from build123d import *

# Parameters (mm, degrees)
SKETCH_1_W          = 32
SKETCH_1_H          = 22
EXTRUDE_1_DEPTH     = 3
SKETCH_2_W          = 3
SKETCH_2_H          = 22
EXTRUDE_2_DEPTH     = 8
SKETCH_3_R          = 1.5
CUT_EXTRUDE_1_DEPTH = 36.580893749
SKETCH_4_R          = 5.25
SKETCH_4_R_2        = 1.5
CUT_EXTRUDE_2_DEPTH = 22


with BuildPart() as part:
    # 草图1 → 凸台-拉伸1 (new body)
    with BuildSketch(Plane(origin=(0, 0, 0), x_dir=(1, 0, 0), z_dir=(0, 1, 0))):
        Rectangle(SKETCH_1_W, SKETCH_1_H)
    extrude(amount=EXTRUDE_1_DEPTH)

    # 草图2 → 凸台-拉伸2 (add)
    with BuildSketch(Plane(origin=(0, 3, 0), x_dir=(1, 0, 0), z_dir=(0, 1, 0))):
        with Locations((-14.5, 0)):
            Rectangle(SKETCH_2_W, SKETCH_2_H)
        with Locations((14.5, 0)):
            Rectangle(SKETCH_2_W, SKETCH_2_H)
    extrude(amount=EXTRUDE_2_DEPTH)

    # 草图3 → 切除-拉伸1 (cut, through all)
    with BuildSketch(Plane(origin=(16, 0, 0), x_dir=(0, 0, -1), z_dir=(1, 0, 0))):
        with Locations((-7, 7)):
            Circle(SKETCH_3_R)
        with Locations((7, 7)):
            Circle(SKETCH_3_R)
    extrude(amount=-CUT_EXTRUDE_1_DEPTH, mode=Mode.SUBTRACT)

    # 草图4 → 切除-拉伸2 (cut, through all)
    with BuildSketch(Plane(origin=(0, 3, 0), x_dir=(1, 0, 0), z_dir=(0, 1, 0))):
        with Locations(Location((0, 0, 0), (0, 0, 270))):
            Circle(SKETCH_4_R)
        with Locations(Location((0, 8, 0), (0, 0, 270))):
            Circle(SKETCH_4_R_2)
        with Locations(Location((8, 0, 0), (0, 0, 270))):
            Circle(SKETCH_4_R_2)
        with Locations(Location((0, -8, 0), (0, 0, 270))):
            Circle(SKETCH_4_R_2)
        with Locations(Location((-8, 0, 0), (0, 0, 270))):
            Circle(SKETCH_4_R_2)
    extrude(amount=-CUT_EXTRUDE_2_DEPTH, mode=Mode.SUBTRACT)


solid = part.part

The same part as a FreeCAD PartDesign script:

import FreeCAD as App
import Part
import Sketcher

V = App.Vector
Q = App.Units.Quantity


def add_polygon(sketch, points):
    """Adds a closed chain of lines whose ends are joined by coincident constraints."""
    first, n = sketch.GeometryCount, len(points)
    for a, b in zip(points, points[1:] + points[:1]):
        sketch.addGeometry(Part.LineSegment(App.Vector(*a, 0), App.Vector(*b, 0)), False)
    for i in range(n):
        sketch.addConstraint(Sketcher.Constraint("Coincident", first + i, 2, first + (i + 1) % n, 1))

doc = App.newDocument("Part")
body = doc.addObject("PartDesign::Body", "Body")

# Sketch on XZ plane
sketch1 = body.newObject("Sketcher::SketchObject", "Sketch")
sketch1.AttachmentSupport = (doc.getObject("XZ_Plane"), [""])
sketch1.MapMode = "FlatFace"
add_polygon(sketch1, [(-16, -11), (-16, 11), (16, 11), (16, -11)])  # lines 0-3
sketch1.addConstraint(Sketcher.Constraint("Vertical", 0))
sketch1.addConstraint(Sketcher.Constraint("Horizontal", 1))
sketch1.addConstraint(Sketcher.Constraint("Vertical", 2))
sketch1.addConstraint(Sketcher.Constraint("Horizontal", 3))
sketch1.addConstraint(Sketcher.Constraint("Symmetric", 0, 2, 2, 2, -1, 1))
sketch1.addConstraint(Sketcher.Constraint("DistanceX", 1, 1, 1, 2, Q("32 mm")))
sketch1.addConstraint(Sketcher.Constraint("DistanceY", 0, 1, 0, 2, Q("22 mm")))
pad1 = body.newObject("PartDesign::Pad", "Pad")
pad1.Profile = sketch1
pad1.Length = 3
pad1.Reversed = True

# Sketch on XZ plane
sketch2 = body.newObject("Sketcher::SketchObject", "Sketch001")
sketch2.AttachmentSupport = (doc.getObject("XZ_Plane"), [""])
sketch2.MapMode = "FlatFace"
sketch2.AttachmentOffset = App.Placement(V(0, 0, -3), App.Rotation())
add_polygon(sketch2, [(-16, -11), (-16, 11), (-13, 11), (-13, -11)])  # lines 0-3
add_polygon(sketch2, [(13, -11), (13, 11), (16, 11), (16, -11)])  # lines 4-7
sketch2.addConstraint(Sketcher.Constraint("Vertical", 0))
sketch2.addConstraint(Sketcher.Constraint("Horizontal", 1))
sketch2.addConstraint(Sketcher.Constraint("Vertical", 2))
sketch2.addConstraint(Sketcher.Constraint("Horizontal", 3))
sketch2.addConstraint(Sketcher.Constraint("Vertical", 4))
sketch2.addConstraint(Sketcher.Constraint("Horizontal", 5))
sketch2.addConstraint(Sketcher.Constraint("Vertical", 6))
sketch2.addConstraint(Sketcher.Constraint("Horizontal", 7))
sketch2.addConstraint(Sketcher.Constraint("Symmetric", 2, 2, 4, 2, -1, 1))
sketch2.addConstraint(Sketcher.Constraint("Symmetric", 0, 2, 6, 2, -1, 1))
sketch2.addConstraint(Sketcher.Constraint("Horizontal", 1, 2, 4, 2))
sketch2.addConstraint(Sketcher.Constraint("DistanceX", 1, 1, 1, 2, Q("3 mm")))
sketch2.addConstraint(Sketcher.Constraint("DistanceY", 0, 1, 0, 2, Q("22 mm")))
sketch2.addConstraint(Sketcher.Constraint("DistanceX", 0, 2, -1, 1, Q("16 mm")))
pad2 = body.newObject("PartDesign::Pad", "Pad001")
pad2.Profile = sketch2
pad2.Length = 8
pad2.Reversed = True

# Sketch on YZ plane
sketch3 = body.newObject("Sketcher::SketchObject", "Sketch002")
sketch3.AttachmentSupport = (doc.getObject("YZ_Plane"), [""])
sketch3.MapMode = "FlatFace"
sketch3.AttachmentOffset = App.Placement(V(0, 0, 16), App.Rotation())
sketch3.addGeometry(Part.Circle(V(7, 7, 0), V(0, 0, 1), 1.5), False)
sketch3.addGeometry(Part.Circle(V(7, -7, 0), V(0, 0, 1), 1.5), False)
sketch3.addConstraint(Sketcher.Constraint("Equal", 0, 1))
sketch3.addConstraint(Sketcher.Constraint("Symmetric", 0, 3, 1, 3, -1))
sketch3.addConstraint(Sketcher.Constraint("Diameter", 0, Q("3 mm")))
sketch3.addConstraint(Sketcher.Constraint("DistanceX", -1, 1, 0, 3, Q("7 mm")))
sketch3.addConstraint(Sketcher.Constraint("DistanceY", -1, 1, 0, 3, Q("7 mm")))
pocket1 = body.newObject("PartDesign::Pocket", "Pocket")
pocket1.Profile = sketch3
pocket1.Type = "ThroughAll"

# Sketch on XZ plane
sketch4 = body.newObject("Sketcher::SketchObject", "Sketch003")
sketch4.AttachmentSupport = (doc.getObject("XZ_Plane"), [""])
sketch4.MapMode = "FlatFace"
sketch4.AttachmentOffset = App.Placement(V(0, 0, -3), App.Rotation())
sketch4.addGeometry(Part.Circle(V(0, 0, 0), V(0, 0, 1), 5.2), False)
sketch4.addGeometry(Part.Circle(V(0, -8, 0), V(0, 0, 1), 1.5), False)
sketch4.addGeometry(Part.Circle(V(8, 0, 0), V(0, 0, 1), 1.5), False)
sketch4.addGeometry(Part.Circle(V(0, 8, 0), V(0, 0, 1), 1.5), False)
sketch4.addGeometry(Part.Circle(V(-8, 0, 0), V(0, 0, 1), 1.5), False)
sketch4.addConstraint(Sketcher.Constraint("Coincident", 0, 3, -1, 1))
sketch4.addConstraint(Sketcher.Constraint("Equal", 1, 2))
sketch4.addConstraint(Sketcher.Constraint("Equal", 2, 3))
sketch4.addConstraint(Sketcher.Constraint("Equal", 3, 4))
sketch4.addConstraint(Sketcher.Constraint("Symmetric", 1, 3, 3, 3, -1, 1))
sketch4.addConstraint(Sketcher.Constraint("Symmetric", 2, 3, 4, 3, -1, 1))
sketch4.addConstraint(Sketcher.Constraint("PointOnObject", 1, 3, -2))
sketch4.addConstraint(Sketcher.Constraint("PointOnObject", 2, 3, -1))
sketch4.addConstraint(Sketcher.Constraint("Diameter", 1, Q("3 mm")))
sketch4.addConstraint(Sketcher.Constraint("Diameter", 0, Q("10.5 mm")))
sketch4.addConstraint(Sketcher.Constraint("DistanceY", 1, 3, -1, 1, Q("8 mm")))
sketch4.addConstraint(Sketcher.Constraint("DistanceX", -1, 1, 2, 3, Q("8 mm")))
pocket2 = body.newObject("PartDesign::Pocket", "Pocket001")
pocket2.Profile = sketch4
pocket2.Type = "ThroughAll"
pocket2.Reversed = True

doc.recompute()
